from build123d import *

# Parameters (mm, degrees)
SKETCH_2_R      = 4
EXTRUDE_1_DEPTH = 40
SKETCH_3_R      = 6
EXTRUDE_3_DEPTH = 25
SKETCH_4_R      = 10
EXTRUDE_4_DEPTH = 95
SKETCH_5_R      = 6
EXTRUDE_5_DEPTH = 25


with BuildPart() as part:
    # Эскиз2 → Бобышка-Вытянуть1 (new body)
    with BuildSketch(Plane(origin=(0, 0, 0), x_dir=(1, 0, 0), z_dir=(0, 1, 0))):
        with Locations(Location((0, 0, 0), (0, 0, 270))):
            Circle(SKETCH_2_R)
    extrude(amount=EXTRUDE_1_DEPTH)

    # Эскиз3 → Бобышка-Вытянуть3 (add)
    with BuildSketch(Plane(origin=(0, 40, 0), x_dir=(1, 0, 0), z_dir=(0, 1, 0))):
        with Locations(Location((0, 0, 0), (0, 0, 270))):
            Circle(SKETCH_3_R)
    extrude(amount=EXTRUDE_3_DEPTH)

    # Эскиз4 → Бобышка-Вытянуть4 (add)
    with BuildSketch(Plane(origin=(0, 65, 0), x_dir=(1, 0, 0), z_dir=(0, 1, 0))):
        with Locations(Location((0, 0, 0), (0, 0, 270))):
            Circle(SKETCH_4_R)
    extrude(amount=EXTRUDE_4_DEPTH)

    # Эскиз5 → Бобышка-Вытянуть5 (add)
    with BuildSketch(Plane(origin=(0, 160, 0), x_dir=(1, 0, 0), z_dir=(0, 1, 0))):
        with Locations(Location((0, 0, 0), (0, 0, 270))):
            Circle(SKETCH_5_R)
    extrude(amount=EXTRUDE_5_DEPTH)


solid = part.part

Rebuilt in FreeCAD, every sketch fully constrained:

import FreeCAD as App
import Part
import Sketcher
from FreeCAD import Vector
Q = App.Units.Quantity

doc = App.newDocument("Part")
params = doc.addObject("Spreadsheet::Sheet", "Params")
for row, (alias, value) in enumerate([
    ("sketch1_diameter", "8 mm"),
    ("pad1_length", "40 mm"),
    ("sketch2_diameter", "12 mm"),
    ("pad2_length", "25 mm"),
    ("sketch3_diameter", "20 mm"),
    ("pad3_length", "95 mm"),
    ("sketch4_diameter", "12 mm"),
    ("pad4_length", "25 mm"),
], start=1):
    params.set(f"A{row}", alias)
    params.set(f"B{row}", "=" + value)
    params.setAlias(f"B{row}", alias)

body = doc.addObject("PartDesign::Body", "Body")

sketch1 = body.newObject("Sketcher::SketchObject", "Sketch")
sketch1.AttachmentSupport = (doc.getObject("XZ_Plane"), [""])
sketch1.MapMode = "FlatFace"
sketch1.addGeometry(Part.Circle(Vector(0, 0, 0), Vector(0, 0, 1), 4), False)
sketch1.addConstraint([
    Sketcher.Constraint("Coincident", 0, 3, -1, 1),
    Sketcher.Constraint("Diameter", 0, Q("8 mm")),
])
sketch1.setExpression("Constraints[1]", "Params.sketch1_diameter")
pad1 = body.newObject("PartDesign::Pad", "Pad")
pad1.Profile = sketch1
pad1.setExpression("Length", "Params.pad1_length")
pad1.Reversed = True

sketch2 = body.newObject("Sketcher::SketchObject", "Sketch001")
sketch2.AttachmentSupport = (doc.getObject("XZ_Plane"), [""])
sketch2.MapMode = "FlatFace"
sketch2.AttachmentOffset = App.Placement(Vector(0, 0, -40), App.Rotation())
sketch2.addGeometry(Part.Circle(Vector(0, 0, 0), Vector(0, 0, 1), 6), False)
sketch2.addConstraint([
    Sketcher.Constraint("Coincident", 0, 3, -1, 1),
    Sketcher.Constraint("Diameter", 0, Q("12 mm")),
])
sketch2.setExpression("Constraints[1]", "Params.sketch2_diameter")
pad2 = body.newObject("PartDesign::Pad", "Pad001")
pad2.Profile = sketch2
pad2.setExpression("Length", "Params.pad2_length")
pad2.Reversed = True

sketch3 = body.newObject("Sketcher::SketchObject", "Sketch002")
sketch3.AttachmentSupport = (doc.getObject("XZ_Plane"), [""])
sketch3.MapMode = "FlatFace"
sketch3.AttachmentOffset = App.Placement(Vector(0, 0, -65), App.Rotation())
sketch3.addGeometry(Part.Circle(Vector(0, 0, 0), Vector(0, 0, 1), 10), False)
sketch3.addConstraint([
    Sketcher.Constraint("Coincident", 0, 3, -1, 1),
    Sketcher.Constraint("Diameter", 0, Q("20 mm")),
])
sketch3.setExpression("Constraints[1]", "Params.sketch3_diameter")
pad3 = body.newObject("PartDesign::Pad", "Pad002")
pad3.Profile = sketch3
pad3.setExpression("Length", "Params.pad3_length")
pad3.Reversed = True

sketch4 = body.newObject("Sketcher::SketchObject", "Sketch003")
sketch4.AttachmentSupport = (doc.getObject("XZ_Plane"), [""])
sketch4.MapMode = "FlatFace"
sketch4.AttachmentOffset = App.Placement(Vector(0, 0, -160), App.Rotation())
sketch4.addGeometry(Part.Circle(Vector(0, 0, 0), Vector(0, 0, 1), 6), False)
sketch4.addConstraint([
    Sketcher.Constraint("Coincident", 0, 3, -1, 1),
    Sketcher.Constraint("Diameter", 0, Q("12 mm")),
])
sketch4.setExpression("Constraints[1]", "Params.sketch4_diameter")
pad4 = body.newObject("PartDesign::Pad", "Pad003")
pad4.Profile = sketch4
pad4.setExpression("Length", "Params.pad4_length")
pad4.Reversed = True

doc.recompute()
